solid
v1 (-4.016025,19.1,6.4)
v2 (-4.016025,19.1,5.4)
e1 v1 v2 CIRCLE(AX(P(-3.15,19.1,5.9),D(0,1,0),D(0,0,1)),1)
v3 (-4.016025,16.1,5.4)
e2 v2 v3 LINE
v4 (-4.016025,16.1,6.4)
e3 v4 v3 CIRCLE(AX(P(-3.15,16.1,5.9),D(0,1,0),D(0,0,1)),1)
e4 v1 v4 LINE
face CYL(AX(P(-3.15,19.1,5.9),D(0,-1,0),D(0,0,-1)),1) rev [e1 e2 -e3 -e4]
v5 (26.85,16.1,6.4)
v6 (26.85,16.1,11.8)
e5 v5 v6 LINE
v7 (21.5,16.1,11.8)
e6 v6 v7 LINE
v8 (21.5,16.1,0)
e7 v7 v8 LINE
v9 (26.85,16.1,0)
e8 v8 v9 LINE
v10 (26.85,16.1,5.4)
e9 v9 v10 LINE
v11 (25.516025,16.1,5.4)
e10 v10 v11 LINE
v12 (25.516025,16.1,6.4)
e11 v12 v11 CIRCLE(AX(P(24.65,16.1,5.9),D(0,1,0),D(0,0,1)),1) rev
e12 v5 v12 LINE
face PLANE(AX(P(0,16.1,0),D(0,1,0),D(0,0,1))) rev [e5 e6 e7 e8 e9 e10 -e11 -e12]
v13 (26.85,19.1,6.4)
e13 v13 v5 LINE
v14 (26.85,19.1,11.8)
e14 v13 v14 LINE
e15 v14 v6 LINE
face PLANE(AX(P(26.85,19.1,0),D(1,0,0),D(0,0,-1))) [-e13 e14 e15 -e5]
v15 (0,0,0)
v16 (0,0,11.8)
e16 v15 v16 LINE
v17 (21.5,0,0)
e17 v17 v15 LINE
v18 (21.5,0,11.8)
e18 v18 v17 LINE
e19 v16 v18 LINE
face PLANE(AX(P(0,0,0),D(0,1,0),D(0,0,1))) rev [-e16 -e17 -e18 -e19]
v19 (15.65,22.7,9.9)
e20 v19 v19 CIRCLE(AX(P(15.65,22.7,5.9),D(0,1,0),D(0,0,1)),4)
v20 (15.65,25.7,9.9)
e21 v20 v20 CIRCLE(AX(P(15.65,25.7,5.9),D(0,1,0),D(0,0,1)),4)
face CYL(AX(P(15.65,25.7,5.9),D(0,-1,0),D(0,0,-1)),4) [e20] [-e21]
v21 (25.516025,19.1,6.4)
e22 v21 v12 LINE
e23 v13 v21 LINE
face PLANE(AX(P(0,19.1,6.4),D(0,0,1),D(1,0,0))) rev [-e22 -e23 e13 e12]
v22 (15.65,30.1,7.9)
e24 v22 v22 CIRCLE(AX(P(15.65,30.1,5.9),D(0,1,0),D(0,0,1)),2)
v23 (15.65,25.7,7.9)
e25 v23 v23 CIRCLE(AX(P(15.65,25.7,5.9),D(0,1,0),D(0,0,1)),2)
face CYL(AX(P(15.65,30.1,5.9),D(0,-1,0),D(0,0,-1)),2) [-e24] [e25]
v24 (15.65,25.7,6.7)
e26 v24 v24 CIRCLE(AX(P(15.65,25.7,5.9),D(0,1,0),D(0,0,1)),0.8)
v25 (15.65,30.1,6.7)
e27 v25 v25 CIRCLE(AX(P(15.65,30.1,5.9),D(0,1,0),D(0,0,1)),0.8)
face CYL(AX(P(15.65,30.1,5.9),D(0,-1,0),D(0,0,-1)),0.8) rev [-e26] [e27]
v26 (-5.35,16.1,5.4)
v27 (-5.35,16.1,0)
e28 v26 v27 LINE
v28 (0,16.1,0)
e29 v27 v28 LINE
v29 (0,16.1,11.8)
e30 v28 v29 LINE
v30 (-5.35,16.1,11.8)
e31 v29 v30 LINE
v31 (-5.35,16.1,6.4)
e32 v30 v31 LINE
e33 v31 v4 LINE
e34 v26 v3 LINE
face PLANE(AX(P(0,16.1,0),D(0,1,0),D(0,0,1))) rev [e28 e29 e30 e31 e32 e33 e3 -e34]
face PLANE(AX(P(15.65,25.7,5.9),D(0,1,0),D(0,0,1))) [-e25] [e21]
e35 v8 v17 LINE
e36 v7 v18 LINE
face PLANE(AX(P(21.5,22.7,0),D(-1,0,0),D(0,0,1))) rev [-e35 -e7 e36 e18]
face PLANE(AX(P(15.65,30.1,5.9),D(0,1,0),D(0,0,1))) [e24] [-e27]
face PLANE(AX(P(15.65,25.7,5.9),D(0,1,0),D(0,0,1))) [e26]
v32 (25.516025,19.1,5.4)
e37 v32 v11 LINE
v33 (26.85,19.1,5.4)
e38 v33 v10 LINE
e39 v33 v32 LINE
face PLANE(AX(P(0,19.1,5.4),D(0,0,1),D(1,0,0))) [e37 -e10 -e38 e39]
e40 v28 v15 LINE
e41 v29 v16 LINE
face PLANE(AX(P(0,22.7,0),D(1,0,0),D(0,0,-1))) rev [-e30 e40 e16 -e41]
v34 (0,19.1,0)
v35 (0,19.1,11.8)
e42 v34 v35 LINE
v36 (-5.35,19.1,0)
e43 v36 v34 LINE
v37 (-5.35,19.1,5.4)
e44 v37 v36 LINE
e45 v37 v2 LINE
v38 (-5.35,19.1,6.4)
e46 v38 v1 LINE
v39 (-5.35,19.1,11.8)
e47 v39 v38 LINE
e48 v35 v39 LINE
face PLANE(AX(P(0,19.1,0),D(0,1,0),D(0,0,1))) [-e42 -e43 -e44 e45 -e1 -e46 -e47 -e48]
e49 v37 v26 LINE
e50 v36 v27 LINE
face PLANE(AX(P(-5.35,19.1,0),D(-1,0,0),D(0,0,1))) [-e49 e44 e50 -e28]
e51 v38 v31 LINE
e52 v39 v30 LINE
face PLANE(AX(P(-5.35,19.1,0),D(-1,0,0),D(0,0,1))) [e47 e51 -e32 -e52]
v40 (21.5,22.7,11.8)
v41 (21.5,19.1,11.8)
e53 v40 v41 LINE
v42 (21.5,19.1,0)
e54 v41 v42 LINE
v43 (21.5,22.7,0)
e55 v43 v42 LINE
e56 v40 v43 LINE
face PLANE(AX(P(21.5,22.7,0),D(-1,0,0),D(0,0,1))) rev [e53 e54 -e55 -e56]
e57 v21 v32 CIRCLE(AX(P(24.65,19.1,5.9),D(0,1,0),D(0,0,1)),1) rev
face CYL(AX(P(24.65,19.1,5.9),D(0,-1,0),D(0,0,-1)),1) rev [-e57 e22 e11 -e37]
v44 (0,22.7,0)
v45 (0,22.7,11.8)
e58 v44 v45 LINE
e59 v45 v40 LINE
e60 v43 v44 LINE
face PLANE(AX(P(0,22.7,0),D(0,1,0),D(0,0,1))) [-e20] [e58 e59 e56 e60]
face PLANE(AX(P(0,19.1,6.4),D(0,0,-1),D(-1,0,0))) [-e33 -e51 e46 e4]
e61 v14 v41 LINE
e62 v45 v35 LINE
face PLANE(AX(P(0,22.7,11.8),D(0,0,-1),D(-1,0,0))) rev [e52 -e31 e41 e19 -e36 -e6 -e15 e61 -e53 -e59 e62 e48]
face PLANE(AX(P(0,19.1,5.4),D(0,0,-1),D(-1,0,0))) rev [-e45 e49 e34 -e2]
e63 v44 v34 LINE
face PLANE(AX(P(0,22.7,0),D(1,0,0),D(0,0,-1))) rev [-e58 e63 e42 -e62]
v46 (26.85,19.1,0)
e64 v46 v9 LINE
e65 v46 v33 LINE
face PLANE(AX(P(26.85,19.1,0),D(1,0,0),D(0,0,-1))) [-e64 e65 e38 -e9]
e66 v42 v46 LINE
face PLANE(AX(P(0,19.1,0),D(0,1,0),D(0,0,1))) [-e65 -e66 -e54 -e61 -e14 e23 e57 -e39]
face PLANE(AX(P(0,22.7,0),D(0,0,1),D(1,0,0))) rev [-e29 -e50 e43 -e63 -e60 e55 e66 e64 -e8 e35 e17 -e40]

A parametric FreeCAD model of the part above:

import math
import FreeCAD as App
import Part
import Sketcher

V = App.Vector
Q = App.Units.Quantity


def add_polygon(sketch, points):
    """Adds a closed chain of lines whose ends are joined by coincident constraints."""
    first, n = sketch.GeometryCount, len(points)
    for a, b in zip(points, points[1:] + points[:1]):
        sketch.addGeometry(Part.LineSegment(App.Vector(*a, 0), App.Vector(*b, 0)), False)
    for i in range(n):
        sketch.addConstraint(Sketcher.Constraint("Coincident", first + i, 2, first + (i + 1) % n, 1))

doc = App.newDocument("Part")
body = doc.addObject("PartDesign::Body", "Body")

# Sketch on XZ plane
sketch1 = body.newObject("Sketcher::SketchObject", "Sketch")
sketch1.AttachmentSupport = (doc.getObject("XZ_Plane"), [""])
sketch1.MapMode = "FlatFace"
add_polygon(sketch1, [(0, 0), (0, 11.8), (21.5, 11.8), (21.5, 0)])  # lines 0-3
sketch1.addConstraint(Sketcher.Constraint("Vertical", 0))
sketch1.addConstraint(Sketcher.Constraint("Horizontal", 1))
sketch1.addConstraint(Sketcher.Constraint("Vertical", 2))
sketch1.addConstraint(Sketcher.Constraint("Horizontal", 3))
sketch1.addConstraint(Sketcher.Constraint("Coincident", 3, 2, -1, 1))
sketch1.addConstraint(Sketcher.Constraint("DistanceX", 1, 1, 1, 2, Q("21.5 mm")))
sketch1.addConstraint(Sketcher.Constraint("DistanceY", 0, 1, 0, 2, Q("11.8 mm")))
pad1 = body.newObject("PartDesign::Pad", "Pad")
pad1.Profile = sketch1
pad1.Length = 22.7
pad1.Reversed = True

# Sketch on XZ plane
sketch2 = body.newObject("Sketcher::SketchObject", "Sketch001")
sketch2.AttachmentSupport = (doc.getObject("XZ_Plane"), [""])
sketch2.MapMode = "FlatFace"
sketch2.AttachmentOffset = App.Placement(V(0, 0, -16.1), App.Rotation())
sketch2.addGeometry(Part.LineSegment(V(-5.35, 11.8, 0), V(0, 11.8, 0)), False)
sketch2.addGeometry(Part.LineSegment(V(0, 11.8, 0), V(0, 0, 0)), False)
sketch2.addGeometry(Part.LineSegment(V(0, 0, 0), V(-5.35, 0, 0)), False)
sketch2.addGeometry(Part.LineSegment(V(-5.35, 0, 0), V(-5.35, 5.4, 0)), False)
sketch2.addGeometry(Part.LineSegment(V(-5.35, 5.4, 0), V(-4.016025, 5.4, 0)), False)
sketch2.addGeometry(Part.ArcOfCircle(Part.Circle(V(-3.15, 5.9, 0), V(0, 0, 1), 1), math.radians(-150), math.radians(150)), False)
sketch2.addGeometry(Part.LineSegment(V(-4.016025, 6.4, 0), V(-5.35, 6.4, 0)), False)
sketch2.addGeometry(Part.LineSegment(V(-5.35, 6.4, 0), V(-5.35, 11.8, 0)), False)
sketch2.addGeometry(Part.LineSegment(V(26.85, 0, 0), V(21.5, 0, 0)), False)
sketch2.addGeometry(Part.LineSegment(V(21.5, 0, 0), V(21.5, 11.8, 0)), False)
sketch2.addGeometry(Part.LineSegment(V(21.5, 11.8, 0), V(26.85, 11.8, 0)), False)
sketch2.addGeometry(Part.LineSegment(V(26.85, 11.8, 0), V(26.85, 6.4, 0)), False)
sketch2.addGeometry(Part.LineSegment(V(26.85, 6.4, 0), V(25.516025, 6.4, 0)), False)
sketch2.addGeometry(Part.ArcOfCircle(Part.Circle(V(24.65, 5.9, 0), V(0, 0, 1), 1), math.radians(30), math.radians(330)), False)
sketch2.addGeometry(Part.LineSegment(V(25.516025, 5.4, 0), V(26.85, 5.4, 0)), False)
sketch2.addGeometry(Part.LineSegment(V(26.85, 5.4, 0), V(26.85, 0, 0)), False)
sketch2.addConstraint(Sketcher.Constraint("Coincident", 0, 2, 1, 1))
sketch2.addConstraint(Sketcher.Constraint("Coincident", 1, 2, 2, 1))
sketch2.addConstraint(Sketcher.Constraint("Coincident", 2, 2, 3, 1))
sketch2.addConstraint(Sketcher.Constraint("Coincident", 3, 2, 4, 1))
sketch2.addConstraint(Sketcher.Constraint("Coincident", 4, 2, 5, 1))
sketch2.addConstraint(Sketcher.Constraint("Coincident", 5, 2, 6, 1))
sketch2.addConstraint(Sketcher.Constraint("Coincident", 6, 2, 7, 1))
sketch2.addConstraint(Sketcher.Constraint("Coincident", 7, 2, 0, 1))
sketch2.addConstraint(Sketcher.Constraint("Coincident", 8, 2, 9, 1))
sketch2.addConstraint(Sketcher.Constraint("Coincident", 9, 2, 10, 1))
sketch2.addConstraint(Sketcher.Constraint("Coincident", 10, 2, 11, 1))
sketch2.addConstraint(Sketcher.Constraint("Coincident", 11, 2, 12, 1))
sketch2.addConstraint(Sketcher.Constraint("Coincident", 12, 2, 13, 1))
sketch2.addConstraint(Sketcher.Constraint("Coincident", 13, 2, 14, 1))
sketch2.addConstraint(Sketcher.Constraint("Coincident", 14, 2, 15, 1))
sketch2.addConstraint(Sketcher.Constraint("Coincident", 15, 2, 8, 1))
sketch2.addConstraint(Sketcher.Constraint("Horizontal", 0))
sketch2.addConstraint(Sketcher.Constraint("Vertical", 1))
sketch2.addConstraint(Sketcher.Constraint("Horizontal", 2))
sketch2.addConstraint(Sketcher.Constraint("Vertical", 3))
sketch2.addConstraint(Sketcher.Constraint("Horizontal", 4))
sketch2.addConstraint(Sketcher.Constraint("Horizontal", 6))
sketch2.addConstraint(Sketcher.Constraint("Vertical", 7))
sketch2.addConstraint(Sketcher.Constraint("Horizontal", 8))
sketch2.addConstraint(Sketcher.Constraint("Vertical", 9))
sketch2.addConstraint(Sketcher.Constraint("Horizontal", 10))
sketch2.addConstraint(Sketcher.Constraint("Vertical", 11))
sketch2.addConstraint(Sketcher.Constraint("Horizontal", 12))
sketch2.addConstraint(Sketcher.Constraint("Horizontal", 14))
sketch2.addConstraint(Sketcher.Constraint("Vertical", 15))
sketch2.addConstraint(Sketcher.Constraint("Coincident", 1, 2, -1, 1))
sketch2.addConstraint(Sketcher.Constraint("Equal", 5, 13))
sketch2.addConstraint(Sketcher.Constraint("PointOnObject", 8, 2, -1))
sketch2.addConstraint(Sketcher.Constraint("Horizontal", 5, 3, 13, 3))
sketch2.addConstraint(Sketcher.Constraint("Horizontal", 7, 2, 9, 2))
sketch2.addConstraint(Sketcher.Constraint("Horizontal", 6, 2, 11, 2))
sketch2.addConstraint(Sketcher.Constraint("Horizontal", 4, 2, 13, 2))
sketch2.addConstraint(Sketcher.Constraint("Vertical", 4, 2, 5, 2))
sketch2.addConstraint(Sketcher.Constraint("Vertical", 3, 2, 6, 2))
sketch2.addConstraint(Sketcher.Constraint("Vertical", 11, 2, 14, 2))
sketch2.addConstraint(Sketcher.Constraint("Equal", 2, 8))
sketch2.addConstraint(Sketcher.Constraint("Equal", 6, 12))
sketch2.addConstraint(Sketcher.Constraint("Equal", 3, 7))
sketch2.addConstraint(Sketcher.Constraint("Radius", 5, Q("1 mm")))
sketch2.addConstraint(Sketcher.Constraint("DistanceY", 1, 2, 1, 1, Q("11.8 mm")))
sketch2.addConstraint(Sketcher.Constraint("DistanceY", 3, 1, 3, 2, Q("5.4 mm")))
sketch2.addConstraint(Sketcher.Constraint("DistanceX", 2, 2, 13, 3, Q("30 mm")))
sketch2.addConstraint(Sketcher.Constraint("DistanceX", 0, 1, 0, 2, Q("5.35 mm")))
sketch2.addConstraint(Sketcher.Constraint("DistanceX", -1, 1, 8, 2, Q("21.5 mm")))
pad2 = body.newObject("PartDesign::Pad", "Pad001")
pad2.Profile = sketch2
pad2.Length = 3
pad2.Reversed = True

# Sketch on XZ plane
sketch3 = body.newObject("Sketcher::SketchObject", "Sketch002")
sketch3.AttachmentSupport = (doc.getObject("XZ_Plane"), [""])
sketch3.MapMode = "FlatFace"
sketch3.AttachmentOffset = App.Placement(V(0, 0, -22.7), App.Rotation())
sketch3.addGeometry(Part.Circle(V(15.65, 5.9, 0), V(0, 0, 1), 2), False)
sketch3.addGeometry(Part.Circle(V(15.65, 5.9, 0), V(0, 0, 1), 0.8), False)
sketch3.addConstraint(Sketcher.Constraint("Coincident", 1, 3, 0, 3))
sketch3.addConstraint(Sketcher.Constraint("Diameter", 0, Q("4 mm")))
sketch3.addConstraint(Sketcher.Constraint("Diameter", 1, Q("1.6 mm")))
sketch3.addConstraint(Sketcher.Constraint("DistanceY", -1, 1, 0, 3, Q("5.9 mm")))
sketch3.addConstraint(Sketcher.Constraint("DistanceX", -1, 1, 0, 3, Q("15.65 mm")))
pad3 = body.newObject("PartDesign::Pad", "Pad002")
pad3.Profile = sketch3
pad3.Length = 7.4
pad3.Reversed = True

# Sketch on XZ plane
sketch4 = body.newObject("Sketcher::SketchObject", "Sketch003")
sketch4.AttachmentSupport = (doc.getObject("XZ_Plane"), [""])
sketch4.MapMode = "FlatFace"
sketch4.AttachmentOffset = App.Placement(V(0, 0, -22.7), App.Rotation())
sketch4.addGeometry(Part.Circle(V(15.65, 5.9, 0), V(0, 0, 1), 4), False)
sketch4.addConstraint(Sketcher.Constraint("Diameter", 0, Q("8 mm")))
sketch4.addConstraint(Sketcher.Constraint("DistanceY", -1, 1, 0, 3, Q("5.9 mm")))
sketch4.addConstraint(Sketcher.Constraint("DistanceX", -1, 1, 0, 3, Q("15.65 mm")))
pad4 = body.newObject("PartDesign::Pad", "Pad003")
pad4.Profile = sketch4
pad4.Length = 3
pad4.Reversed = True

doc.recompute()
